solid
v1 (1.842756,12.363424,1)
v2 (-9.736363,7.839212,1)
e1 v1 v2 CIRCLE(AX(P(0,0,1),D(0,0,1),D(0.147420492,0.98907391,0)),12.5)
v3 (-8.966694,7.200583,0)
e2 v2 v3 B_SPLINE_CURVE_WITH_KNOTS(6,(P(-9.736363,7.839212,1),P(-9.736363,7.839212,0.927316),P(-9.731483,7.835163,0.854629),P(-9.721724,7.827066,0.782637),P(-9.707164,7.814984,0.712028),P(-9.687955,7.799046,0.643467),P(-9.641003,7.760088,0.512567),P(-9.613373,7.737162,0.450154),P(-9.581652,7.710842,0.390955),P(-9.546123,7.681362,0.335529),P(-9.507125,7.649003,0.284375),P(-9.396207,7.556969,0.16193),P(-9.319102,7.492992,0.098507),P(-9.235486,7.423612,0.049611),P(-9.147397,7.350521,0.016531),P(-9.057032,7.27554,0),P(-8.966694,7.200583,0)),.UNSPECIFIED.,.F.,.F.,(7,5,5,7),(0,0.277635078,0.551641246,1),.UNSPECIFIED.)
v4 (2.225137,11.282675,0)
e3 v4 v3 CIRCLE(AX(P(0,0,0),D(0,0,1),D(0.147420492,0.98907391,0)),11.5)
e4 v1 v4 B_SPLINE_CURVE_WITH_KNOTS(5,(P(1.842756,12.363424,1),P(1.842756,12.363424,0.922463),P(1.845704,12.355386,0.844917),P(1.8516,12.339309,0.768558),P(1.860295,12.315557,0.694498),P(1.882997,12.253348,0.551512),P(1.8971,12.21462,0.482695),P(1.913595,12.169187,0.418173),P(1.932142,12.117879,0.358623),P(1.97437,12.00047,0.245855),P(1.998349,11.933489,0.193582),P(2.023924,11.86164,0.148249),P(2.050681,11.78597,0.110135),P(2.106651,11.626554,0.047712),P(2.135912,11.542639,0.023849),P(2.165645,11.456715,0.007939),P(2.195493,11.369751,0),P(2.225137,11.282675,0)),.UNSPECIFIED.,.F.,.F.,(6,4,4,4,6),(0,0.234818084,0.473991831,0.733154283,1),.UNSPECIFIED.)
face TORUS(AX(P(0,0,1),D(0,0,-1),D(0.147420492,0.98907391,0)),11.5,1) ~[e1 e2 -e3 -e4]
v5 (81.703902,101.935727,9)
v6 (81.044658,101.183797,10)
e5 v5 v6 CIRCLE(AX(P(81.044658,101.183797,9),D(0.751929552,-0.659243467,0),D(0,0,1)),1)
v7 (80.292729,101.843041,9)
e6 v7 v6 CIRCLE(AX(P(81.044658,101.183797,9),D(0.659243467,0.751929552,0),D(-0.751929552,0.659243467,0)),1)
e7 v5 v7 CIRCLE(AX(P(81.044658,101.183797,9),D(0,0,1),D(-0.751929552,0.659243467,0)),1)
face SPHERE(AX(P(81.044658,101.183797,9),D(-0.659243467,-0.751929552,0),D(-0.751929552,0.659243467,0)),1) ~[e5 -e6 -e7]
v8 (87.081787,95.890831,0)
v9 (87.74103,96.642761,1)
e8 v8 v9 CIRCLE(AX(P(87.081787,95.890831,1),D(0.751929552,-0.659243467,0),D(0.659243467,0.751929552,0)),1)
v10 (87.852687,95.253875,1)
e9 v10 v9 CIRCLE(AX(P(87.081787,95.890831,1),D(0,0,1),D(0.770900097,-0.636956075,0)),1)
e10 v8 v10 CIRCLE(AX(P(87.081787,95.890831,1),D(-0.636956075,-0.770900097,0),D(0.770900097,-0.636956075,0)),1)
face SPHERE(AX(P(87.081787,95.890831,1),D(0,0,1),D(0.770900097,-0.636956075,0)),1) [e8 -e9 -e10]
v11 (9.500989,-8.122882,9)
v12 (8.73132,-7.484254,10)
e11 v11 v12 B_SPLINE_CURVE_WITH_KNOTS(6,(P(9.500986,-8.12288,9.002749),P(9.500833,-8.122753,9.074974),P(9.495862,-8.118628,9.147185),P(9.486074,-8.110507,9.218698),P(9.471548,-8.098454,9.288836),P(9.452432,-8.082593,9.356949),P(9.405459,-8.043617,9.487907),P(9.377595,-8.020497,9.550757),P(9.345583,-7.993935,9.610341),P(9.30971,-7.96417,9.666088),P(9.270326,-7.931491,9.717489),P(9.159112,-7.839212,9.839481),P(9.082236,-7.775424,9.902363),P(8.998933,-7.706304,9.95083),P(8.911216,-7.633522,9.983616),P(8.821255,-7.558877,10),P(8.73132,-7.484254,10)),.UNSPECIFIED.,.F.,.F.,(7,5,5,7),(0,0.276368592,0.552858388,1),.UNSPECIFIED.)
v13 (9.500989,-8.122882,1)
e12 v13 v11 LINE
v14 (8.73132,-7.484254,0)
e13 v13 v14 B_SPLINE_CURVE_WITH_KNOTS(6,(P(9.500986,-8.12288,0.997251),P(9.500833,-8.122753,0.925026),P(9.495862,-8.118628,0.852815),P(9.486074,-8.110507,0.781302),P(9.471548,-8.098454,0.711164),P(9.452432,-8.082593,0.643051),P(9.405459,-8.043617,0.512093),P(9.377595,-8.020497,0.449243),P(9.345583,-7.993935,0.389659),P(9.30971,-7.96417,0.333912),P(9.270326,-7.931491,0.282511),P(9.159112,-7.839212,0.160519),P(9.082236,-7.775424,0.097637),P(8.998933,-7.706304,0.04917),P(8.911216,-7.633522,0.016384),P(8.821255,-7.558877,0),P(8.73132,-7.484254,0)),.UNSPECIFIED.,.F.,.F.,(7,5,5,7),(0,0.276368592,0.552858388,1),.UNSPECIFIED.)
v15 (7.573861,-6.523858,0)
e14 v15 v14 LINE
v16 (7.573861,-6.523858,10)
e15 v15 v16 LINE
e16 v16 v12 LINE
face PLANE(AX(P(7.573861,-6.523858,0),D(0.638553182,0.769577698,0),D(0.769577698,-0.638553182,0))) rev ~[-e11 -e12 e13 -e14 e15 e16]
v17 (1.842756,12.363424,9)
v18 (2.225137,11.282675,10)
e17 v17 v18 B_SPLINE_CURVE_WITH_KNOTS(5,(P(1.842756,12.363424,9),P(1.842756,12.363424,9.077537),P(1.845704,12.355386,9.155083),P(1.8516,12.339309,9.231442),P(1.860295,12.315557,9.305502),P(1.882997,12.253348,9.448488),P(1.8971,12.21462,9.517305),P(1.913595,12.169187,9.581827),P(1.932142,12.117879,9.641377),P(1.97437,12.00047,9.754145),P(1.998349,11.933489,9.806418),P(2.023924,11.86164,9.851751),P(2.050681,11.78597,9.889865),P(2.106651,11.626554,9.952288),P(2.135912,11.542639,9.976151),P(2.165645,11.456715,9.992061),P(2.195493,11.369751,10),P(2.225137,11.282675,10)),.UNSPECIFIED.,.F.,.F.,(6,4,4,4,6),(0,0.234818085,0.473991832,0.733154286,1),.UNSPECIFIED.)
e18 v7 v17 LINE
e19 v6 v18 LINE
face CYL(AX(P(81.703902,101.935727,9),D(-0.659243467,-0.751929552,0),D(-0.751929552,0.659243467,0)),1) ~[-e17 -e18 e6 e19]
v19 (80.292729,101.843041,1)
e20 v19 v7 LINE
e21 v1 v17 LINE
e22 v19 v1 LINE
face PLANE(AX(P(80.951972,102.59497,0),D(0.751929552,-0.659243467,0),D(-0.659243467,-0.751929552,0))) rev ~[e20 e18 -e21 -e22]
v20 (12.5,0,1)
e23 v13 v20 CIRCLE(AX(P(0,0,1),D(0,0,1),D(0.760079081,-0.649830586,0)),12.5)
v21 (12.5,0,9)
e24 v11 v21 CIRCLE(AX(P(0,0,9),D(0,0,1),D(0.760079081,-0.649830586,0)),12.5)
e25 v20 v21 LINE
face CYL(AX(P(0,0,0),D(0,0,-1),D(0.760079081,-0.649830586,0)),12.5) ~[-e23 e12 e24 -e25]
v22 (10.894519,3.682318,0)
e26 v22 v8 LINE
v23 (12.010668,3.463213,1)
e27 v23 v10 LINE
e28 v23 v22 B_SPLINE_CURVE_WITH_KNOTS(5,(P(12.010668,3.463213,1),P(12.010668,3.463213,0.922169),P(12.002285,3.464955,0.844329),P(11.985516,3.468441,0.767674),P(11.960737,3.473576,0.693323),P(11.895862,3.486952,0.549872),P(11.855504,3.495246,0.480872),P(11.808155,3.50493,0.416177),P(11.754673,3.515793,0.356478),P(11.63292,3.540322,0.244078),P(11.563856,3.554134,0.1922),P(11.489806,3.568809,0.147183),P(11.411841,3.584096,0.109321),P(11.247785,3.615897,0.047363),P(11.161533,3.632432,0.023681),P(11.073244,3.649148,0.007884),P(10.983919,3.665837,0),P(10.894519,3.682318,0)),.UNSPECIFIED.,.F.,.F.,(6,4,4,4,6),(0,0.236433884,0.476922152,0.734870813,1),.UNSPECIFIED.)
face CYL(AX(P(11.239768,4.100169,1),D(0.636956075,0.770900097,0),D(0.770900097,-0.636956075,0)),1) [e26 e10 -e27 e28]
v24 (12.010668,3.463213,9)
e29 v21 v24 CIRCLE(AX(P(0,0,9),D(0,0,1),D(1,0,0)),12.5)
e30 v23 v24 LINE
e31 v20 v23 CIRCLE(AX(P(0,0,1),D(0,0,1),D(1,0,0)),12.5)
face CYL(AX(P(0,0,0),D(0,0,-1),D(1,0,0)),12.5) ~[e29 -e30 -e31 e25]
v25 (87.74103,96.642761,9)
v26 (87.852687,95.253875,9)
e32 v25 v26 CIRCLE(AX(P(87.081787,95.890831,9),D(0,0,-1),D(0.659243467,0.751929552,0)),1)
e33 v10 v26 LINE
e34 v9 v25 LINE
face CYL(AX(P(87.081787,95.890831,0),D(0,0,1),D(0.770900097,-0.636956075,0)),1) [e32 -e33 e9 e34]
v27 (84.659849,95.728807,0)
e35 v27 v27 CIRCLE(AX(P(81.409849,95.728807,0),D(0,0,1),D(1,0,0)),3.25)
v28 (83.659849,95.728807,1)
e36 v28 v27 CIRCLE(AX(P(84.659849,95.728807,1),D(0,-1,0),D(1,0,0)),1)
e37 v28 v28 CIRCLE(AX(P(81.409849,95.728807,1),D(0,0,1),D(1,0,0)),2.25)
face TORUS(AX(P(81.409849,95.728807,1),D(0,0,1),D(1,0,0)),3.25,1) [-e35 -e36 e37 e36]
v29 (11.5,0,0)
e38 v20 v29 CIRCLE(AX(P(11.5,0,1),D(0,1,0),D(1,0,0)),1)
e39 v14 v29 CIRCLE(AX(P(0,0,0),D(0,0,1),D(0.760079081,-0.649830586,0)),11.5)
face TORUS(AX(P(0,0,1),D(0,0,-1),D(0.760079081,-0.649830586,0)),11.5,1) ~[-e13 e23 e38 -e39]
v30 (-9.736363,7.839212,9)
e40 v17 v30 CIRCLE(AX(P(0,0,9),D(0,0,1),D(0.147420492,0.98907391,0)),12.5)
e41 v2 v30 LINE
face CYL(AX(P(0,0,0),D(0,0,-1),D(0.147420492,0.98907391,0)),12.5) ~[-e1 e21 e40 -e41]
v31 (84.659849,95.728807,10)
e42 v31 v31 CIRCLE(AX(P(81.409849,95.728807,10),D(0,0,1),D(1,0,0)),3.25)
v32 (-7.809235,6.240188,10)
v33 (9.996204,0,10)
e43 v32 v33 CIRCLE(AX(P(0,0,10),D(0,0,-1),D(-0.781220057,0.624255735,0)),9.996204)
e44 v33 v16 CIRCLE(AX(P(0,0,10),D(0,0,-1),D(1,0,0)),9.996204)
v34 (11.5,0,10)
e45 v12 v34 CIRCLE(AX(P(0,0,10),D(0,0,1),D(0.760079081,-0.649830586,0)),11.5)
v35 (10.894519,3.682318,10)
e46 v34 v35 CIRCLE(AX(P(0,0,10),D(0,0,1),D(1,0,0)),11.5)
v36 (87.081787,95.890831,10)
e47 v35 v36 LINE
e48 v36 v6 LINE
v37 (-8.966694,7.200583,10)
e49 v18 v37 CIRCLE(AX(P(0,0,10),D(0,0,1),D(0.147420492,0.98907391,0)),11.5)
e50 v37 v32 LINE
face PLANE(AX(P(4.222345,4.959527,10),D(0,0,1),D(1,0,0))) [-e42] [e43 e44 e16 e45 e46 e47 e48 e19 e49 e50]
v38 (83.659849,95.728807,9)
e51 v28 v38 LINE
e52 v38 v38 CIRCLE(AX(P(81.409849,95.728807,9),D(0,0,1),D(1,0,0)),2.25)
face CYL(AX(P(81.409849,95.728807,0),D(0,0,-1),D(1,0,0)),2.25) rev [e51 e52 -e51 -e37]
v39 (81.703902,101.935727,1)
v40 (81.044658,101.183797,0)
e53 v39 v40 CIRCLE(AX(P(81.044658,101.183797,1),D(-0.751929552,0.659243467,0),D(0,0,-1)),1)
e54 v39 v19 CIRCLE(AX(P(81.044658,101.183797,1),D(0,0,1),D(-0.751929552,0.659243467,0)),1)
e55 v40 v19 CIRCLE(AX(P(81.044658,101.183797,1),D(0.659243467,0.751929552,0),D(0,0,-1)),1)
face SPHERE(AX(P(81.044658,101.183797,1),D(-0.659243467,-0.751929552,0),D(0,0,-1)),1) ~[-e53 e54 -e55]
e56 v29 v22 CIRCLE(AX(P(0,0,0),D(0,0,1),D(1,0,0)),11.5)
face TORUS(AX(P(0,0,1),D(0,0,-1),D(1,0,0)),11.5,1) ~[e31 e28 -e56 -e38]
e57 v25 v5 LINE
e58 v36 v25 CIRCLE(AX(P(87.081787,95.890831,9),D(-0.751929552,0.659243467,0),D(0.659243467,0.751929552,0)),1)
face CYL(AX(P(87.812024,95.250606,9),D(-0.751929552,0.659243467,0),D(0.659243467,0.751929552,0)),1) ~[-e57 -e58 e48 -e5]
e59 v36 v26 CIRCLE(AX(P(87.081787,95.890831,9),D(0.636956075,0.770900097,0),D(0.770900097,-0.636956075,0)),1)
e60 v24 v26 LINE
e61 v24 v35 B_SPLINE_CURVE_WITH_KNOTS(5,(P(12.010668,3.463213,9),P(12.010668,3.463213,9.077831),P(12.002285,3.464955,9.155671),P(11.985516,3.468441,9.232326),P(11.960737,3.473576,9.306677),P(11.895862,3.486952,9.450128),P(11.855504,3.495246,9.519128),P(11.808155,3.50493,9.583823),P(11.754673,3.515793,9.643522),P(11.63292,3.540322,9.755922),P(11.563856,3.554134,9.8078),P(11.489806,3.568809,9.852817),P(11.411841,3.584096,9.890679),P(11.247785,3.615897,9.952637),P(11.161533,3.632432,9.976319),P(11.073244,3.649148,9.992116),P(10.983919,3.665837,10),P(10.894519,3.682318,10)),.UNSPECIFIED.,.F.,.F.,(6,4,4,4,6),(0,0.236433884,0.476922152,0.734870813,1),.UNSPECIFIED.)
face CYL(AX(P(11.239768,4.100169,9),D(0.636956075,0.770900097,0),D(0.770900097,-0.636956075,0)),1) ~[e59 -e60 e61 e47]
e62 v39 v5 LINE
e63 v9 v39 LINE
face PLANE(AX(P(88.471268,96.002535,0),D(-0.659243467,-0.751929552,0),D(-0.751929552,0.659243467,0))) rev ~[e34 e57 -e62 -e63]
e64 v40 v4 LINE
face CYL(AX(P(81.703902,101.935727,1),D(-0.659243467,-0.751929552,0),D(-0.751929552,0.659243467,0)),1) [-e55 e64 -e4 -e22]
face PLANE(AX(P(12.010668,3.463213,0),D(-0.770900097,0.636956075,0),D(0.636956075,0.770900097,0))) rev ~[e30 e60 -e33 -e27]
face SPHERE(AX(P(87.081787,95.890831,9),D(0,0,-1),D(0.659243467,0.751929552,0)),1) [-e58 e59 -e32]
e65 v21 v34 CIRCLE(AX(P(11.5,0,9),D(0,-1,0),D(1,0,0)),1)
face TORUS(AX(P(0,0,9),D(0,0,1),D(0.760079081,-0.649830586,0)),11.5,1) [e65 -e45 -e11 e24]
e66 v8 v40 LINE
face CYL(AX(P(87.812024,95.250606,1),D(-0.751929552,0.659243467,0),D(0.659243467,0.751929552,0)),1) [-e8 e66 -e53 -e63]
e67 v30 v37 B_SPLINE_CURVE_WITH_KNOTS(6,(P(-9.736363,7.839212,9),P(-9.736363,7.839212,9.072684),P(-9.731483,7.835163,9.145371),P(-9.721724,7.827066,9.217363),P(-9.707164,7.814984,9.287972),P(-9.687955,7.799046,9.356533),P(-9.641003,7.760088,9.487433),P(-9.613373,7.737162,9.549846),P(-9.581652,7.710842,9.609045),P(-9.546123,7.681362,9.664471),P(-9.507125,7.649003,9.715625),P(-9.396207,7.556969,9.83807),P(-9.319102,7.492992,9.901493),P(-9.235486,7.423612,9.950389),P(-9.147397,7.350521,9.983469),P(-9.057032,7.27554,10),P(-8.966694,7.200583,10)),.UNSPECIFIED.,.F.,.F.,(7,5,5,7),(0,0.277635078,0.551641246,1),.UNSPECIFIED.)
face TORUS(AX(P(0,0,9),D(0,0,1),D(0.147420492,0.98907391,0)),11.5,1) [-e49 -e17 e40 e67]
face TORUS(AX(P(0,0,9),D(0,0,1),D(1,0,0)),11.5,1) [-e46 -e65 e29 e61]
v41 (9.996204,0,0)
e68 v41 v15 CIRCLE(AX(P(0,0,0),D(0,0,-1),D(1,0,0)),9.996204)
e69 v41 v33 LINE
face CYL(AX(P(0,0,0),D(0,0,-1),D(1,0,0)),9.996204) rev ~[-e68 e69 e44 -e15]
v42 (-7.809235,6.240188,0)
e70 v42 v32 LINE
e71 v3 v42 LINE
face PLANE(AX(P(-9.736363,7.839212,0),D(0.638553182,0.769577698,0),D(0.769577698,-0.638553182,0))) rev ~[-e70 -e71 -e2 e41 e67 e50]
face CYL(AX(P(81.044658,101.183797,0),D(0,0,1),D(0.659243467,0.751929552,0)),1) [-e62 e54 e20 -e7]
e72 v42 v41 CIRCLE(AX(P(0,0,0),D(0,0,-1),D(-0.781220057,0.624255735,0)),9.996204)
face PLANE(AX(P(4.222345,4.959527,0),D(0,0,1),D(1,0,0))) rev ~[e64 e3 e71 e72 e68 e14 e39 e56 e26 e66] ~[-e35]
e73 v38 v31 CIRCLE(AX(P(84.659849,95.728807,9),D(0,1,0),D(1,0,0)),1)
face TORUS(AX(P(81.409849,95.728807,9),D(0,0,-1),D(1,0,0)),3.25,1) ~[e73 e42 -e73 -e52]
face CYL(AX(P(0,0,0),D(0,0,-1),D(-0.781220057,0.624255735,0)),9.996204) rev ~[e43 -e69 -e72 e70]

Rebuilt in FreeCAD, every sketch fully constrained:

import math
import FreeCAD as App
import Part
import Sketcher


def edges_at(feature, points):
    """Names of the edges that pass closest to the given points."""
    edges = feature.Shape.Edges
    near = lambda p: min(range(len(edges)), key=lambda i: edges[i].distToShape(Part.Vertex(*p))[0])
    return sorted({f"Edge{near(p) + 1}" for p in points})

doc = App.newDocument("Part")
body = doc.addObject("PartDesign::Body", "Body")

sketch1 = doc.addObject("Sketcher::SketchObject", "Sketch")
body.addObject(sketch1)
sketch1.AttachmentSupport = (doc.XY_Plane, [""])
sketch1.MapMode = "FlatFace"
sketch1.addGeometry(Part.ArcOfCircle(Part.Circle(App.Vector(0, 0, 0), App.Vector(0, 0, 1), 12.5), math.radians(-40.52883), math.radians(0)), False)
sketch1.addGeometry(Part.ArcOfCircle(Part.Circle(App.Vector(0, 0, 0), App.Vector(0, 0, 1), 12.5), math.radians(0), math.radians(16.084639)), False)
sketch1.addGeometry(Part.LineSegment(App.Vector(12.010668, 3.463213, 0), App.Vector(88.471268, 96.002535, 0)), False)
sketch1.addGeometry(Part.LineSegment(App.Vector(88.471268, 96.002535, 0), App.Vector(80.951972, 102.59497, 0)), False)
sketch1.addGeometry(Part.LineSegment(App.Vector(80.951972, 102.59497, 0), App.Vector(1.842756, 12.363424, 0)), False)
sketch1.addGeometry(Part.ArcOfCircle(Part.Circle(App.Vector(0, 0, 0), App.Vector(0, 0, 1), 12.5), math.radians(81.52253), math.radians(141.160793)), False)
sketch1.addGeometry(Part.LineSegment(App.Vector(-9.736363, 7.839212, 0), App.Vector(-7.809235, 6.240188, 0)), False)
sketch1.addGeometry(Part.ArcOfCircle(Part.Circle(App.Vector(0, 0, 0), App.Vector(0, 0, 1), 9.996204), math.radians(0), math.radians(141.372419)), False)
sketch1.addGeometry(Part.ArcOfCircle(Part.Circle(App.Vector(0, 0, 0), App.Vector(0, 0, 1), 9.996204), math.radians(-40.740455), math.radians(0)), False)
sketch1.addGeometry(Part.LineSegment(App.Vector(7.573861, -6.523858, 0), App.Vector(9.500989, -8.122882, 0)), False)
sketch1.addGeometry(Part.Circle(App.Vector(81.409849, 95.728807, 0), App.Vector(0, 0, 1), 2.25), False)
sketch1.addConstraint(Sketcher.Constraint("Tangent", 0, 2, 1, 1))
sketch1.addConstraint(Sketcher.Constraint("Coincident", 1, 2, 2, 1))
sketch1.addConstraint(Sketcher.Constraint("Coincident", 2, 2, 3, 1))
sketch1.addConstraint(Sketcher.Constraint("Coincident", 3, 2, 4, 1))
sketch1.addConstraint(Sketcher.Constraint("Coincident", 4, 2, 5, 1))
sketch1.addConstraint(Sketcher.Constraint("Coincident", 5, 2, 6, 1))
sketch1.addConstraint(Sketcher.Constraint("Coincident", 6, 2, 7, 2))
sketch1.addConstraint(Sketcher.Constraint("Tangent", 7, 1, 8, 2))
sketch1.addConstraint(Sketcher.Constraint("Coincident", 8, 1, 9, 1))
sketch1.addConstraint(Sketcher.Constraint("Coincident", 9, 2, 0, 1))
sketch1.addConstraint(Sketcher.Constraint("Coincident", 0, 3, -1, 1))
sketch1.addConstraint(Sketcher.Constraint("Coincident", 5, 3, -1, 1))
sketch1.addConstraint(Sketcher.Constraint("Coincident", 7, 3, -1, 1))
sketch1.addConstraint(Sketcher.Constraint("Equal", 0, 1))
sketch1.addConstraint(Sketcher.Constraint("Equal", 1, 5))
sketch1.addConstraint(Sketcher.Constraint("Equal", 7, 8))
sketch1.addConstraint(Sketcher.Constraint("PointOnObject", 0, 2, -1))
sketch1.addConstraint(Sketcher.Constraint("PointOnObject", 7, 1, -1))
sketch1.addConstraint(Sketcher.Constraint("Perpendicular", 3, 4))
sketch1.addConstraint(Sketcher.Constraint("Parallel", 6, 9))
sketch1.addConstraint(Sketcher.Constraint("Equal", 6, 9))
sketch1.addConstraint(Sketcher.Constraint("Diameter", 10, 4.5))
sketch1.addConstraint(Sketcher.Constraint("Radius", 0, 12.5))
sketch1.addConstraint(Sketcher.Constraint("Distance", 3, 10.0))
sketch1.addConstraint(Sketcher.Constraint("Distance", 4, 120.0))
sketch1.addConstraint(Sketcher.Constraint("Radius", 7, 9.996204))
sketch1.addConstraint(Sketcher.Constraint("DistanceX", 1, 2, 2, 2, 76.460599))
sketch1.addConstraint(Sketcher.Constraint("DistanceX", -1, 1, 10, 3, 81.409849))
sketch1.addConstraint(Sketcher.Constraint("DistanceX", -1, 1, 1, 2, 12.010668))
sketch1.addConstraint(Sketcher.Constraint("DistanceY", -1, 1, 3, 2, 102.59497))
sketch1.addConstraint(Sketcher.Constraint("DistanceY", -1, 1, 5, 2, 7.839212))
sketch1.addConstraint(Sketcher.Constraint("DistanceX", -1, 1, 8, 1, 7.573861))
sketch1.addConstraint(Sketcher.Constraint("DistanceY", 10, 3, 2, 2, 0.273728))
pad1 = doc.addObject("PartDesign::Pad", "Pad")
body.addObject(pad1)
pad1.Profile = sketch1
pad1.Length = 10
doc.recompute()

fillet = doc.addObject("PartDesign::Fillet", "Fillet")
body.addObject(fillet)
fillet.Base = (pad1, edges_at(pad1, [
    (41.397, 57.479, 10),
    (11.726, -4.329, 10),
    (50.241, 49.733, 10),
    (-4.549, 11.643, 10),
    (11.726, -4.329, 0),
    (-4.549, 11.643, 0),
    (50.241, 49.733, 0),
    (41.397, 57.479, 0),
    (79.16, 95.729, 0),
    (84.712, 99.299, 0),
    (79.16, 95.729, 10),
    (88.471, 96.003, 5),
    (80.952, 102.595, 5),
    (84.712, 99.299, 10),
]))
fillet.Radius = 1

doc.recompute()
